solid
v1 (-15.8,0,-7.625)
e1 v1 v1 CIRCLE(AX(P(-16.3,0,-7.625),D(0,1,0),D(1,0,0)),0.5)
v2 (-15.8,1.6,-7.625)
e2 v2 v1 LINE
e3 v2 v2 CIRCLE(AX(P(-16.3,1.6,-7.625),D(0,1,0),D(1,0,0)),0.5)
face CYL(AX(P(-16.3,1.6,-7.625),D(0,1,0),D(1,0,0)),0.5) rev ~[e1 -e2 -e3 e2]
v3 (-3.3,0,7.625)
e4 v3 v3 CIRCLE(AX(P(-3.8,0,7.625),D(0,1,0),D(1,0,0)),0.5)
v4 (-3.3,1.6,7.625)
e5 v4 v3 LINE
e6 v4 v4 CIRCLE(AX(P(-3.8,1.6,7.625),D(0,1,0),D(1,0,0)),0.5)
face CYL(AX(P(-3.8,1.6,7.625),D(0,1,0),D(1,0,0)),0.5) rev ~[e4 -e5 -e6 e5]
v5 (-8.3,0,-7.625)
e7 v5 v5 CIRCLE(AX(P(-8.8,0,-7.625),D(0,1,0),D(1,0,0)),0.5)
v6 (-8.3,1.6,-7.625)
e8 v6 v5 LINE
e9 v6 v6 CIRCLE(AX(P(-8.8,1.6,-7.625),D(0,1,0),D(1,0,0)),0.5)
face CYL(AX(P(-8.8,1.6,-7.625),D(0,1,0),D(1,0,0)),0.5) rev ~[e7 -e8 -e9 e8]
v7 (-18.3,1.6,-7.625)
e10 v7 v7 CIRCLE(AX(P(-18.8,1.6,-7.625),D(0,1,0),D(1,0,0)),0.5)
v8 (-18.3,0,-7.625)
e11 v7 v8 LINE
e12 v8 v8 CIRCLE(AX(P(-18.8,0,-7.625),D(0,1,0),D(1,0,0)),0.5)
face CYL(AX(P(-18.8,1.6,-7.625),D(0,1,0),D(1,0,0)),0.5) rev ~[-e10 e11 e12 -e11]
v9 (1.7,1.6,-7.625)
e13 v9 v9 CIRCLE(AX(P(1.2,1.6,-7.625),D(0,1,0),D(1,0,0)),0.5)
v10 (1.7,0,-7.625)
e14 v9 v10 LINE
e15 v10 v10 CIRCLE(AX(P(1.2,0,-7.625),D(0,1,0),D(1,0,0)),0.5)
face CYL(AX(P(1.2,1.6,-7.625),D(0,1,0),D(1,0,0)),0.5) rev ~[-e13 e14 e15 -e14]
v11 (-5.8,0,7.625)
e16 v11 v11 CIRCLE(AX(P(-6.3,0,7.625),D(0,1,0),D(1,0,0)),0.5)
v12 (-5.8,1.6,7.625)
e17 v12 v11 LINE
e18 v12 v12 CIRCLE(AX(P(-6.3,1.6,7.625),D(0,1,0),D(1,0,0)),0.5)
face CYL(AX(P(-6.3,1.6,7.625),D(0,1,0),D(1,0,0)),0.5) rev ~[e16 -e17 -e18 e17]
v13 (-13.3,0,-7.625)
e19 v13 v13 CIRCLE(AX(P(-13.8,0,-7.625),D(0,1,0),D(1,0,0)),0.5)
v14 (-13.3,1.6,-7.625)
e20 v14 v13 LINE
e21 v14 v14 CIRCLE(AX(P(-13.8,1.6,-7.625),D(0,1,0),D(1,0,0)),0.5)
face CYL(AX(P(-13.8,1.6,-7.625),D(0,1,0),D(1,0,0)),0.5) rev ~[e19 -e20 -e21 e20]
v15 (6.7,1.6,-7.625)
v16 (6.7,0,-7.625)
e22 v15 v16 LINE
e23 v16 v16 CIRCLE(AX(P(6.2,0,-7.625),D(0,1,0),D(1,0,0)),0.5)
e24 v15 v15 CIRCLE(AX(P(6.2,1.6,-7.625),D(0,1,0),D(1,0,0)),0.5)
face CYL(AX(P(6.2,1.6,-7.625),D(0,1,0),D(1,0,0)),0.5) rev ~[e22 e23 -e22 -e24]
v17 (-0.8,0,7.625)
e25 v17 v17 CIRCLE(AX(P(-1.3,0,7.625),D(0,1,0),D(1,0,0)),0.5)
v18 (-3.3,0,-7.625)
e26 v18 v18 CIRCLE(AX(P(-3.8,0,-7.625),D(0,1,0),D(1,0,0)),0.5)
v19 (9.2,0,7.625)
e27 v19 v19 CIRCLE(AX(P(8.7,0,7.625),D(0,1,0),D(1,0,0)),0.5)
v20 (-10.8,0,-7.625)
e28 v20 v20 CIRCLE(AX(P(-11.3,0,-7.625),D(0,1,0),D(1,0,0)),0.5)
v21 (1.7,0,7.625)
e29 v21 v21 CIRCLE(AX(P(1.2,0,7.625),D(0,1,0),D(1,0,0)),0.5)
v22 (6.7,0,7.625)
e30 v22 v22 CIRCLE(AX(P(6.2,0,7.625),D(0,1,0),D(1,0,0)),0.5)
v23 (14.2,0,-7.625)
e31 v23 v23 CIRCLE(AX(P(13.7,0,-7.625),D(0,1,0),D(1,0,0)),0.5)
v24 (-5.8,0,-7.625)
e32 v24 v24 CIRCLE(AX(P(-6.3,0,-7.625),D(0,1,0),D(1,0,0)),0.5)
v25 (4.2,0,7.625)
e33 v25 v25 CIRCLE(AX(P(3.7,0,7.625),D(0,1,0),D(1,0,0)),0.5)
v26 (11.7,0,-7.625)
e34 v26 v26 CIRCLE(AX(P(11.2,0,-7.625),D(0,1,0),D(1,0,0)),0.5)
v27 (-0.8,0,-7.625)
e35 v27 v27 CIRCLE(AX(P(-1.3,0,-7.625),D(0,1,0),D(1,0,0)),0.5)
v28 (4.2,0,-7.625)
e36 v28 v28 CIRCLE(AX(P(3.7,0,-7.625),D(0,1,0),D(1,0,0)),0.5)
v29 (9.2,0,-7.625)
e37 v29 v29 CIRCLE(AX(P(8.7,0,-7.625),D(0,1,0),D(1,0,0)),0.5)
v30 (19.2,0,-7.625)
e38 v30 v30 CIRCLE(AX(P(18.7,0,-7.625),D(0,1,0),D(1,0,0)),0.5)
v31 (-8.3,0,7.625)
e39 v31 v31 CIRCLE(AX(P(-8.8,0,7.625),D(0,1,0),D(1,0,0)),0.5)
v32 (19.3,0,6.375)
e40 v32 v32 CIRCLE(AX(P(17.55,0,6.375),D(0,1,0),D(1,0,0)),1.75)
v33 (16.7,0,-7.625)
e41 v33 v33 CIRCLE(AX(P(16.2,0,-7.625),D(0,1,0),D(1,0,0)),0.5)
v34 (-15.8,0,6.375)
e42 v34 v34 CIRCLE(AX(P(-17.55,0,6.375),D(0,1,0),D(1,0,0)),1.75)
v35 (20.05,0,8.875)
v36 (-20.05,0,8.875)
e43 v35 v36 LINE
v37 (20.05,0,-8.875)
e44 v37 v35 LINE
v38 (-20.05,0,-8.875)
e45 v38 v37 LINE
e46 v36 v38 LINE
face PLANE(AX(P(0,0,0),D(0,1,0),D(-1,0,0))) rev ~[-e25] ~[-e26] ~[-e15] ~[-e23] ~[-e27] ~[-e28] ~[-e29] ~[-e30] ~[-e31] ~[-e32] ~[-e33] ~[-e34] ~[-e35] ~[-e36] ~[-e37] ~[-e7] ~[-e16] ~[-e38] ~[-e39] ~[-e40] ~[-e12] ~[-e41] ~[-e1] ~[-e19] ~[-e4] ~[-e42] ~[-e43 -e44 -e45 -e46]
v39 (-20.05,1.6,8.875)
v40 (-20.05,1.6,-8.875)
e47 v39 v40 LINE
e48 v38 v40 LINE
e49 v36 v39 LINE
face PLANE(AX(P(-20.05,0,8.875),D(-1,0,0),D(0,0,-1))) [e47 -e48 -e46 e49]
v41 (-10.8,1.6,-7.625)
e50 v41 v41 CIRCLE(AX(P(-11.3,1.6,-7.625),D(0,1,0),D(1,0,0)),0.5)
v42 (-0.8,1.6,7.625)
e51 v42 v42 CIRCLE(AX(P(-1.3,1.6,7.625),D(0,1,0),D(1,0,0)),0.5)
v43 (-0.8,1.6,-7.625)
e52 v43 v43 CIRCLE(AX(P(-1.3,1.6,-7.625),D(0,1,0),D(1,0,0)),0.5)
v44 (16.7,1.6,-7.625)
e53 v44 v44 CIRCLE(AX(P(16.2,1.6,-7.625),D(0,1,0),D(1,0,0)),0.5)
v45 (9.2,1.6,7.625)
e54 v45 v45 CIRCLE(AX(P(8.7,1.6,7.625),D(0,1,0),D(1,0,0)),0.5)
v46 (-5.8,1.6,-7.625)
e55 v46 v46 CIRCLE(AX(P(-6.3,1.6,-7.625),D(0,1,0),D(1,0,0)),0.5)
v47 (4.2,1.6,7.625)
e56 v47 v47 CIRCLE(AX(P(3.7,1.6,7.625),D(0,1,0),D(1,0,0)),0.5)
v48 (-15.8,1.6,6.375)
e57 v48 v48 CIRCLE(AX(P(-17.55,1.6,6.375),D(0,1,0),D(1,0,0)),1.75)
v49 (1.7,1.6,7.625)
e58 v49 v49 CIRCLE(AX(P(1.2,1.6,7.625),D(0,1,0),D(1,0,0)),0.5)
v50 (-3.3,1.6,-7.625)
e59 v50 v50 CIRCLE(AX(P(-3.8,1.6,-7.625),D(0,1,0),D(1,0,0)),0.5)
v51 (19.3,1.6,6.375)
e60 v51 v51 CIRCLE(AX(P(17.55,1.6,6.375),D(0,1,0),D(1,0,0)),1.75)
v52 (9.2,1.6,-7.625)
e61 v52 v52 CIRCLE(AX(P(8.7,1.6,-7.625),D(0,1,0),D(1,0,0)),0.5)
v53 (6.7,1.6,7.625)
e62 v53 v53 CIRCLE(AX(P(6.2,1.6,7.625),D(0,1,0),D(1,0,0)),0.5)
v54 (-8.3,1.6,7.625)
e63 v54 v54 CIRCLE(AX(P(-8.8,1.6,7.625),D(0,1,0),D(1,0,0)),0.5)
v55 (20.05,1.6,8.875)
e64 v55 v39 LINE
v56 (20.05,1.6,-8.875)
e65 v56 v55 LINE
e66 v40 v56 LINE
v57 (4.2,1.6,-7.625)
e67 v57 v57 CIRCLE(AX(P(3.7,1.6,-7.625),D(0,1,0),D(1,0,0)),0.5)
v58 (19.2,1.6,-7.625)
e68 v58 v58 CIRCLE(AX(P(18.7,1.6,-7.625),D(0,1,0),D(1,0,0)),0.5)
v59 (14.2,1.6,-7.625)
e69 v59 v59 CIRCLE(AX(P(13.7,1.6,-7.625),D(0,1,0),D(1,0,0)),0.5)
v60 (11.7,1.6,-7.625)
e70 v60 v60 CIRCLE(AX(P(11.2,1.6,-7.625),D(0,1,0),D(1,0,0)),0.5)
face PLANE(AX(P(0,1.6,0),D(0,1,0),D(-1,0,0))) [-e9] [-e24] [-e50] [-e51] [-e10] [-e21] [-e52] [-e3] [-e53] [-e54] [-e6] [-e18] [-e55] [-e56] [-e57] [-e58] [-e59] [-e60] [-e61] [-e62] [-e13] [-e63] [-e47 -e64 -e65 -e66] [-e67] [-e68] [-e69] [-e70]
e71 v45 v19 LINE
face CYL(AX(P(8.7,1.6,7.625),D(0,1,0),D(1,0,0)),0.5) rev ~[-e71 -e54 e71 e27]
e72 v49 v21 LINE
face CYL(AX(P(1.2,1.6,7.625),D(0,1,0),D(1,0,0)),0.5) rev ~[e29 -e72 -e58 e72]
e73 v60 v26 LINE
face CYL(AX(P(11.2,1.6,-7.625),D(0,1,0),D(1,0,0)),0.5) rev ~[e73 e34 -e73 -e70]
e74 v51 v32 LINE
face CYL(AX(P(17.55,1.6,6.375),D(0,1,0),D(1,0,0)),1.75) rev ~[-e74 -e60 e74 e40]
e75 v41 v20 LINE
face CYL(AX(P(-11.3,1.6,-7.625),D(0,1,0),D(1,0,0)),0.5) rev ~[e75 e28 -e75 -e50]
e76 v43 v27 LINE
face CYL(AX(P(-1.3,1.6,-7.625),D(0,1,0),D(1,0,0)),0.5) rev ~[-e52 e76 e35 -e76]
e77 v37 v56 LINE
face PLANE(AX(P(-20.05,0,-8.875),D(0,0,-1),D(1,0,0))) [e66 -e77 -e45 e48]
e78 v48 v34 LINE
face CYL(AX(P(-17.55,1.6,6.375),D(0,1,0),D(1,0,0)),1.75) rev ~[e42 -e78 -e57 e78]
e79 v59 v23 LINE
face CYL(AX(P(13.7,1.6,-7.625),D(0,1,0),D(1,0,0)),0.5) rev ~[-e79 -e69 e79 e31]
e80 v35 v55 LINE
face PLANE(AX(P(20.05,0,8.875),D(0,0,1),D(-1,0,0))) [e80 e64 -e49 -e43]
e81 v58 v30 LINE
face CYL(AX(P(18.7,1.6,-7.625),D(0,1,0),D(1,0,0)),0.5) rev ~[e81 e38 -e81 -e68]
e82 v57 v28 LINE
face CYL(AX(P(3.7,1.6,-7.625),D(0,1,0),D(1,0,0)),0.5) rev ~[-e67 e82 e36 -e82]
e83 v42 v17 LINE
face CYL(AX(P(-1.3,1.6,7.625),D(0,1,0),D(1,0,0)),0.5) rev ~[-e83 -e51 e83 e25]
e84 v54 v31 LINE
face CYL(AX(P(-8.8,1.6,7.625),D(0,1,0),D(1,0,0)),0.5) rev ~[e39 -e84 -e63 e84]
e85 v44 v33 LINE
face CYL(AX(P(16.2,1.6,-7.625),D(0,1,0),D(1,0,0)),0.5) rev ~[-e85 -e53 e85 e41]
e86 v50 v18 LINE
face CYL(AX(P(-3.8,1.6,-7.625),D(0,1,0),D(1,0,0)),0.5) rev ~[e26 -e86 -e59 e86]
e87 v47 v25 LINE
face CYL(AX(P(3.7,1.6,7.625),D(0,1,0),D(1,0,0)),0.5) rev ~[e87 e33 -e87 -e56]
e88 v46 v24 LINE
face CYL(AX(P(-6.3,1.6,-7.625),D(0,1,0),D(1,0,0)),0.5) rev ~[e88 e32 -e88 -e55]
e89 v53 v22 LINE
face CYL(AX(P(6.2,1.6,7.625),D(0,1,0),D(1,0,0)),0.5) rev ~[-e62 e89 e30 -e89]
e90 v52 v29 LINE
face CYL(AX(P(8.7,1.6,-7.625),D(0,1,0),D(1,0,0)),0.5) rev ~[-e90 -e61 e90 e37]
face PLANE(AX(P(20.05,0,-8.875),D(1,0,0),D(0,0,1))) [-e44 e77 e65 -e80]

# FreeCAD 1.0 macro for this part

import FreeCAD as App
import Part
import Sketcher
Q = App.Units.Quantity


def add_polygon(sketch, points):
    """Adds a closed chain of lines whose ends are joined by coincident constraints."""
    first, n = sketch.GeometryCount, len(points)
    for a, b in zip(points, points[1:] + points[:1]):
        sketch.addGeometry(Part.LineSegment(App.Vector(*a, 0), App.Vector(*b, 0)), False)
    for i in range(n):
        sketch.addConstraint(Sketcher.Constraint("Coincident", first + i, 2, first + (i + 1) % n, 1))

doc = App.newDocument("Part")
body = doc.addObject("PartDesign::Body", "Body")

# Sketch on XZ plane
sketch1 = doc.addObject("Sketcher::SketchObject", "Sketch")
body.addObject(sketch1)
sketch1.AttachmentSupport = (doc.XZ_Plane, [""])
sketch1.MapMode = "FlatFace"
add_polygon(sketch1, [(-20.05, 8.875), (20.05, 8.875), (20.05, -8.875), (-20.05, -8.875)])  # lines 0-3
sketch1.addConstraint([
    Sketcher.Constraint("Horizontal", 0),
    Sketcher.Constraint("Vertical", 1),
    Sketcher.Constraint("Horizontal", 2),
    Sketcher.Constraint("Vertical", 3),
    Sketcher.Constraint("Symmetric", 0, 2, 2, 2, -1, 1),
    Sketcher.Constraint("DistanceX", 0, 1, 0, 2, Q("40.1 mm")),
    Sketcher.Constraint("DistanceY", 1, 2, 1, 1, Q("17.75 mm")),
])
pad1 = doc.addObject("PartDesign::Pad", "Pad")
body.addObject(pad1)
pad1.Profile = sketch1
pad1.Length = 1.6
pad1.Reversed = True

# Sketch on XZ plane
sketch2 = doc.addObject("Sketcher::SketchObject", "Sketch001")
body.addObject(sketch2)
sketch2.AttachmentSupport = (doc.XZ_Plane, [""])
sketch2.MapMode = "FlatFace"
sketch2.AttachmentOffset = App.Placement(App.Vector(0, 0, -1.6), App.Rotation())
sketch2.addGeometry([
    Part.Circle(App.Vector(-18.8, -7.625, 0), App.Vector(0, 0, 1), 0.5),  # 0
    Part.Circle(App.Vector(-16.3, -7.625, 0), App.Vector(0, 0, 1), 0.5),  # 1
    Part.Circle(App.Vector(-13.8, -7.625, 0), App.Vector(0, 0, 1), 0.5),  # 2
    Part.Circle(App.Vector(-11.3, -7.625, 0), App.Vector(0, 0, 1), 0.5),  # 3
    Part.Circle(App.Vector(-8.8, -7.625, 0), App.Vector(0, 0, 1), 0.5),  # 4
    Part.Circle(App.Vector(-6.3, -7.625, 0), App.Vector(0, 0, 1), 0.5),  # 5
    Part.Circle(App.Vector(-3.8, -7.625, 0), App.Vector(0, 0, 1), 0.5),  # 6
    Part.Circle(App.Vector(-1.3, -7.625, 0), App.Vector(0, 0, 1), 0.5),  # 7
    Part.Circle(App.Vector(1.2, -7.625, 0), App.Vector(0, 0, 1), 0.5),  # 8
    Part.Circle(App.Vector(3.7, -7.625, 0), App.Vector(0, 0, 1), 0.5),  # 9
    Part.Circle(App.Vector(6.2, -7.625, 0), App.Vector(0, 0, 1), 0.5),  # 10
    Part.Circle(App.Vector(8.7, -7.625, 0), App.Vector(0, 0, 1), 0.5),  # 11
    Part.Circle(App.Vector(11.2, -7.625, 0), App.Vector(0, 0, 1), 0.5),  # 12
    Part.Circle(App.Vector(13.7, -7.625, 0), App.Vector(0, 0, 1), 0.5),  # 13
    Part.Circle(App.Vector(16.2, -7.625, 0), App.Vector(0, 0, 1), 0.5),  # 14
    Part.Circle(App.Vector(18.7, -7.625, 0), App.Vector(0, 0, 1), 0.5),  # 15
    Part.Circle(App.Vector(-8.8, 7.625, 0), App.Vector(0, 0, 1), 0.5),  # 16
    Part.Circle(App.Vector(-6.3, 7.625, 0), App.Vector(0, 0, 1), 0.5),  # 17
    Part.Circle(App.Vector(-3.8, 7.625, 0), App.Vector(0, 0, 1), 0.5),  # 18
    Part.Circle(App.Vector(-1.3, 7.625, 0), App.Vector(0, 0, 1), 0.5),  # 19
    Part.Circle(App.Vector(1.2, 7.625, 0), App.Vector(0, 0, 1), 0.5),  # 20
    Part.Circle(App.Vector(3.7, 7.625, 0), App.Vector(0, 0, 1), 0.5),  # 21
    Part.Circle(App.Vector(6.2, 7.625, 0), App.Vector(0, 0, 1), 0.5),  # 22
    Part.Circle(App.Vector(8.7, 7.625, 0), App.Vector(0, 0, 1), 0.5),  # 23
    Part.Circle(App.Vector(-17.55, 6.375, 0), App.Vector(0, 0, 1), 1.75),  # 24
    Part.Circle(App.Vector(17.55, 6.375, 0), App.Vector(0, 0, 1), 1.75),  # 25
], False)
sketch2.addConstraint([
    Sketcher.Constraint("Equal", 0, 1),
    Sketcher.Constraint("Equal", 1, 2),
    Sketcher.Constraint("Equal", 2, 3),
    Sketcher.Constraint("Equal", 3, 4),
    Sketcher.Constraint("Equal", 4, 5),
    Sketcher.Constraint("Equal", 5, 6),
    Sketcher.Constraint("Equal", 6, 7),
    Sketcher.Constraint("Equal", 7, 8),
    Sketcher.Constraint("Equal", 8, 9),
    Sketcher.Constraint("Equal", 9, 10),
    Sketcher.Constraint("Equal", 10, 11),
    Sketcher.Constraint("Equal", 11, 12),
    Sketcher.Constraint("Equal", 12, 13),
    Sketcher.Constraint("Equal", 13, 14),
    Sketcher.Constraint("Equal", 14, 15),
    Sketcher.Constraint("Equal", 15, 16),
    Sketcher.Constraint("Equal", 16, 17),
    Sketcher.Constraint("Equal", 17, 18),
    Sketcher.Constraint("Equal", 18, 19),
    Sketcher.Constraint("Equal", 19, 20),
    Sketcher.Constraint("Equal", 20, 21),
    Sketcher.Constraint("Equal", 21, 22),
    Sketcher.Constraint("Equal", 22, 23),
    Sketcher.Constraint("Equal", 24, 25),
    Sketcher.Constraint("Symmetric", 24, 3, 25, 3, -2),
    Sketcher.Constraint("Symmetric", 4, 3, 16, 3, -1),
    Sketcher.Constraint("Symmetric", 5, 3, 17, 3, -1),
    Sketcher.Constraint("Symmetric", 6, 3, 18, 3, -1),
    Sketcher.Constraint("Symmetric", 7, 3, 19, 3, -1),
    Sketcher.Constraint("Symmetric", 8, 3, 20, 3, -1),
    Sketcher.Constraint("Symmetric", 9, 3, 21, 3, -1),
    Sketcher.Constraint("Symmetric", 10, 3, 22, 3, -1),
    Sketcher.Constraint("Symmetric", 11, 3, 23, 3, -1),
    Sketcher.Constraint("Horizontal", 0, 3, 1, 3),
    Sketcher.Constraint("Horizontal", 1, 3, 2, 3),
    Sketcher.Constraint("Horizontal", 2, 3, 3, 3),
    Sketcher.Constraint("Horizontal", 3, 3, 4, 3),
    Sketcher.Constraint("Horizontal", 4, 3, 5, 3),
    Sketcher.Constraint("Horizontal", 5, 3, 6, 3),
    Sketcher.Constraint("Horizontal", 6, 3, 7, 3),
    Sketcher.Constraint("Horizontal", 7, 3, 8, 3),
    Sketcher.Constraint("Horizontal", 8, 3, 9, 3),
    Sketcher.Constraint("Horizontal", 9, 3, 10, 3),
    Sketcher.Constraint("Horizontal", 10, 3, 11, 3),
    Sketcher.Constraint("Horizontal", 11, 3, 12, 3),
    Sketcher.Constraint("Horizontal", 12, 3, 13, 3),
    Sketcher.Constraint("Horizontal", 13, 3, 14, 3),
    Sketcher.Constraint("Horizontal", 14, 3, 15, 3),
    Sketcher.Constraint("Diameter", 0, Q("1 mm")),
    Sketcher.Constraint("Diameter", 24, Q("3.5 mm")),
    Sketcher.Constraint("DistanceX", 0, 3, 4, 3, Q("10 mm")),
    Sketcher.Constraint("DistanceX", 1, 3, 5, 3, Q("10 mm")),
    Sketcher.Constraint("DistanceX", 2, 3, 6, 3, Q("10 mm")),
    Sketcher.Constraint("DistanceX", 3, 3, 7, 3, Q("10 mm")),
    Sketcher.Constraint("DistanceX", 4, 3, 8, 3, Q("10 mm")),
    Sketcher.Constraint("DistanceX", 5, 3, 9, 3, Q("10 mm")),
    Sketcher.Constraint("DistanceX", 6, 3, 10, 3, Q("10 mm")),
    Sketcher.Constraint("DistanceX", 7, 3, 11, 3, Q("10 mm")),
    Sketcher.Constraint("DistanceX", 8, 3, 12, 3, Q("10 mm")),
    Sketcher.Constraint("DistanceX", 9, 3, 13, 3, Q("10 mm")),
    Sketcher.Constraint("DistanceX", 10, 3, 14, 3, Q("10 mm")),
    Sketcher.Constraint("DistanceX", 11, 3, 15, 3, Q("10 mm")),
    Sketcher.Constraint("DistanceX", 0, 3, 1, 3, Q("2.5 mm")),
    Sketcher.Constraint("DistanceX", 1, 3, 2, 3, Q("2.5 mm")),
    Sketcher.Constraint("DistanceX", 2, 3, 3, 3, Q("2.5 mm")),
    Sketcher.Constraint("DistanceY", 24, 3, 16, 3, Q("1.25 mm")),
    Sketcher.Constraint("DistanceX", 0, 3, 24, 3, Q("1.25 mm")),
    Sketcher.Constraint("DistanceY", 0, 3, 24, 3, Q("14 mm")),
    Sketcher.Constraint("DistanceX", 0, 3, -1, 1, Q("18.8 mm")),
])
pocket1 = doc.addObject("PartDesign::Pocket", "Pocket")
body.addObject(pocket1)
pocket1.Profile = sketch2
pocket1.Type = "ThroughAll"
pocket1.Reversed = True

doc.recompute()
